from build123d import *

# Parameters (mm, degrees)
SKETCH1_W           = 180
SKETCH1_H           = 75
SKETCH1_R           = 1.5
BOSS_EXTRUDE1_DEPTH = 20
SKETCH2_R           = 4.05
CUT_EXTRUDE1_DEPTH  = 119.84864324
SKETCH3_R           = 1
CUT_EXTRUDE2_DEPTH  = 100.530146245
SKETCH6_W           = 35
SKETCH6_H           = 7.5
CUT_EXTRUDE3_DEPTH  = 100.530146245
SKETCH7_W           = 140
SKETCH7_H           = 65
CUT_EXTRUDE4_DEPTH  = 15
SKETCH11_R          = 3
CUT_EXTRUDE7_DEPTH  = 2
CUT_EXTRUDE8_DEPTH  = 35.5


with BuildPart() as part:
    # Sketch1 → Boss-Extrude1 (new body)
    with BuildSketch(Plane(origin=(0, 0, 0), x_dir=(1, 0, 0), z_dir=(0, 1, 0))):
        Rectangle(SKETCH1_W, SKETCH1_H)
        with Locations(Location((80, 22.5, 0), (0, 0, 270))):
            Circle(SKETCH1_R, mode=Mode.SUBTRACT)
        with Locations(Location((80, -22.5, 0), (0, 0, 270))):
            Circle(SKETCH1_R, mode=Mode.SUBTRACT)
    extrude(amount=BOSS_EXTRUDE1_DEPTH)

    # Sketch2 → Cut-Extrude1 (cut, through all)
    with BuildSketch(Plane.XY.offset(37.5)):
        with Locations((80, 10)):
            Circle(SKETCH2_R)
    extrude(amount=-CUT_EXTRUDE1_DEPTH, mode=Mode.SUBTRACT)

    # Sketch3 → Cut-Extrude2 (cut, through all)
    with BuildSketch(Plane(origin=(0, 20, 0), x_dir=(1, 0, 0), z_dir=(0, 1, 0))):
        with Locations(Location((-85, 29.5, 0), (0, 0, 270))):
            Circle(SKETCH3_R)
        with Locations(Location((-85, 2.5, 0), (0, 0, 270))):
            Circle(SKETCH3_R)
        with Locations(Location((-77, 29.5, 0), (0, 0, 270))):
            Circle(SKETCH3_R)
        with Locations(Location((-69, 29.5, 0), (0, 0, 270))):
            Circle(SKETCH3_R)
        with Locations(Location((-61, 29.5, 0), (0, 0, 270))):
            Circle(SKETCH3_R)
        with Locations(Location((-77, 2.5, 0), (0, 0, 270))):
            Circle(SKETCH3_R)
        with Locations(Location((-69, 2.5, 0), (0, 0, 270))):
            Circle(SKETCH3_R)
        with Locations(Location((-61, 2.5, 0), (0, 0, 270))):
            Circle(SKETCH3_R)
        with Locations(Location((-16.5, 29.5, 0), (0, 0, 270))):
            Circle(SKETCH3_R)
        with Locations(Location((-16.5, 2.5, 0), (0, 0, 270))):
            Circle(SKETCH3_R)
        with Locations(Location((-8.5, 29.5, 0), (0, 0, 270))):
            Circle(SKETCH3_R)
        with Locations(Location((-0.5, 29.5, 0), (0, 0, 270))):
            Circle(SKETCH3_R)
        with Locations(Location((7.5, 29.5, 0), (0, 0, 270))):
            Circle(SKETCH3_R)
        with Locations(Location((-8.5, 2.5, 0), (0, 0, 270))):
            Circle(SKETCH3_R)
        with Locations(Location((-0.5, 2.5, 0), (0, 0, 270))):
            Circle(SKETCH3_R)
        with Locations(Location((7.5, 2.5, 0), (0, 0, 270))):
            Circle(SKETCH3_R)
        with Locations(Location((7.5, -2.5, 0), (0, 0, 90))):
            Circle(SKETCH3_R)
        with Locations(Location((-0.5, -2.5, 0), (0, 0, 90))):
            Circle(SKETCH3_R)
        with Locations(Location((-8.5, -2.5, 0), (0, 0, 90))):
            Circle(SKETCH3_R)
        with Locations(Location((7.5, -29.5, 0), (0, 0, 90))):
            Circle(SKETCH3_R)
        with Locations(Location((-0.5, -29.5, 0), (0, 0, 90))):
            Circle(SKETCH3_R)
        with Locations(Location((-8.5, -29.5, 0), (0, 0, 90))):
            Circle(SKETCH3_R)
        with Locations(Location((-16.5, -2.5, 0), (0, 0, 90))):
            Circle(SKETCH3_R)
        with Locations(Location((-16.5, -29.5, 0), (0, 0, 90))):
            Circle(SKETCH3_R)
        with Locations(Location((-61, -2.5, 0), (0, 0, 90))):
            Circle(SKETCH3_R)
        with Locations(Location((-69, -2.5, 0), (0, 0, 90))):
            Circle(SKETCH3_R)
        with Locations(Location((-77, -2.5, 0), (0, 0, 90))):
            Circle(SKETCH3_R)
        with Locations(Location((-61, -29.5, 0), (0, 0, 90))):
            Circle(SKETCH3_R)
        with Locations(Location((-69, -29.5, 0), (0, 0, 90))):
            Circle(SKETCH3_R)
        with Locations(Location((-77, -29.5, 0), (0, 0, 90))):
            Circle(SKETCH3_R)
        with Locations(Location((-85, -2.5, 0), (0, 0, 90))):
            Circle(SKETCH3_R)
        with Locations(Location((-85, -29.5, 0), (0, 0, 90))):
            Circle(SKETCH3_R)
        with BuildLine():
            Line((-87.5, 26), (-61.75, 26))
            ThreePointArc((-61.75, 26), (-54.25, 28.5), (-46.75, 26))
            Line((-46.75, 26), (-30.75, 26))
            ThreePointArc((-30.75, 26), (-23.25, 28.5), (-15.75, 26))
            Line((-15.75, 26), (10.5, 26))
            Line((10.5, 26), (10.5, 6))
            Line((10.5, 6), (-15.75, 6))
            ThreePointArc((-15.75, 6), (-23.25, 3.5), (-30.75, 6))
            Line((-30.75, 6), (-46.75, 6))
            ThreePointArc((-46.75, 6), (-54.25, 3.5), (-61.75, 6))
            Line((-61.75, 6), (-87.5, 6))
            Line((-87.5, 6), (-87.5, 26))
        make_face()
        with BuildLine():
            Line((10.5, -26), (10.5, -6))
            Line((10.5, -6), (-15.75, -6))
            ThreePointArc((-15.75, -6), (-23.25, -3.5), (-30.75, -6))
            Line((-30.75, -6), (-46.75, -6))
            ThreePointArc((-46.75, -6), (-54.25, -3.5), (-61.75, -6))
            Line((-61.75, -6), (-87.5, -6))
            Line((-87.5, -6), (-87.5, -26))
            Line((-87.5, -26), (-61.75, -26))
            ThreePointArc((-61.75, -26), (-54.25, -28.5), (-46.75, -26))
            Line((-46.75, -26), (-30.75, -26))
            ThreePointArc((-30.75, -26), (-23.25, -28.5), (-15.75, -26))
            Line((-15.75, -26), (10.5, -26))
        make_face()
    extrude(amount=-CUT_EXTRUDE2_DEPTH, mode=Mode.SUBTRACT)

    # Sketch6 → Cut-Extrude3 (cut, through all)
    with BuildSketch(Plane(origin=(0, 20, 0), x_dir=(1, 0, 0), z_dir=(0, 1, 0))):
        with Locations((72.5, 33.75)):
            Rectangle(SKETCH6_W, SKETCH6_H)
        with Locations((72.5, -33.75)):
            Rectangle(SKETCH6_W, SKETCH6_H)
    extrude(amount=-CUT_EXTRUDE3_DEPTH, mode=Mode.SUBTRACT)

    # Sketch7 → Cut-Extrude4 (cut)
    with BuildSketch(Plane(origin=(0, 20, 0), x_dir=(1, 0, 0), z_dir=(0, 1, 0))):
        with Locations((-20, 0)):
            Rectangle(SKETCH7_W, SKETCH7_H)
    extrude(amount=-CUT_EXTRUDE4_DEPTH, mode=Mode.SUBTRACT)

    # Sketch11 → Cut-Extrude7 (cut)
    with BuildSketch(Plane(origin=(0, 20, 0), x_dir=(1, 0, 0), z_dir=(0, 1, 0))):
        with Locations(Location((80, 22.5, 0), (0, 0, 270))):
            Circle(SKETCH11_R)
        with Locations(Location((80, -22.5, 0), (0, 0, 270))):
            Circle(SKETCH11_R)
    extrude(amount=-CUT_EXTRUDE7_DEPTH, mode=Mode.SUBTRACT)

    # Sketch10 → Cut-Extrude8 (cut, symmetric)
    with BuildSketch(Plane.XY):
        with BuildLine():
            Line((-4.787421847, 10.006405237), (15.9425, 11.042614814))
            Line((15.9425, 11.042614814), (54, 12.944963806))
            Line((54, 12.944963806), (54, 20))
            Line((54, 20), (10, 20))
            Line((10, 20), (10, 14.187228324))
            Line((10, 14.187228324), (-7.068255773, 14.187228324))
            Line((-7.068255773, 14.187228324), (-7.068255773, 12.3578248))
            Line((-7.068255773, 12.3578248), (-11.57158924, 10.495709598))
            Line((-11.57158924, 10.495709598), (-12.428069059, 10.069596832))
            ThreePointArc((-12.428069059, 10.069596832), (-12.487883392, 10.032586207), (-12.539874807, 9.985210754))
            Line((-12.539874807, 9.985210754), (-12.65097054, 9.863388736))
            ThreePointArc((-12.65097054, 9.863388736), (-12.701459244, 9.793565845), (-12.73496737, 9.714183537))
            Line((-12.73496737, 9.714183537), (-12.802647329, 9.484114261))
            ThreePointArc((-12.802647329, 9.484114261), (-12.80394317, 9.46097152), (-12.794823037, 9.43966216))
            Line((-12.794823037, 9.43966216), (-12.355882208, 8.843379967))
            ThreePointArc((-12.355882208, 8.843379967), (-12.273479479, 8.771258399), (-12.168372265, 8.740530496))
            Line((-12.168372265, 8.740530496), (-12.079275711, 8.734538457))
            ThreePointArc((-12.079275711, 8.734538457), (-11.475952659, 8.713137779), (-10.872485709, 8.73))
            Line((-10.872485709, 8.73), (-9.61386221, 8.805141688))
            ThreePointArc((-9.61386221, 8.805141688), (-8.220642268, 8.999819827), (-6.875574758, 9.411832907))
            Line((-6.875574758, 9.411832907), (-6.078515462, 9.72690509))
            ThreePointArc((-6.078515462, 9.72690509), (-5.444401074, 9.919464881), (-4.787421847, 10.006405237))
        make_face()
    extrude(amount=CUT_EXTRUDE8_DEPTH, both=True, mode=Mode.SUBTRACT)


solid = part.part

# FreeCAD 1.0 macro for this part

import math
import FreeCAD as App
import Part
import Sketcher
from FreeCAD import Vector
Q = App.Units.Quantity

doc = App.newDocument("Part")
params = doc.addObject("Spreadsheet::Sheet", "Params")
for row, (alias, value) in enumerate([
    ("sketch1_diameter", "3 mm"),
    ("sketch1_width", "180 mm"),
    ("sketch1_height", "75 mm"),
    ("pad1_length", "20 mm"),
    ("sketch2_diameter", "8.1 mm"),
    ("sketch3_diameter", "2 mm"),
    ("sketch3_radius", "12.5 mm"),
    ("sketch3_width", "16 mm"),
    ("sketch3_height", "20 mm"),
    ("sketch3_width2", "25.75 mm"),
    ("sketch4_width", "35 mm"),
    ("sketch4_height", "7.5 mm"),
    ("sketch5_width", "140 mm"),
    ("sketch5_height", "65 mm"),
    ("pocket4_length", "15 mm"),
    ("sketch6_diameter", "6 mm"),
    ("pocket5_length", "2 mm"),
    ("sketch7_width", "44 mm"),
    ("sketch7_radius", "8.89 mm"),
    ("pocket6_length", "71 mm"),
], start=1):
    params.set(f"A{row}", alias)
    params.set(f"B{row}", "=" + value)
    params.setAlias(f"B{row}", alias)

body = doc.addObject("PartDesign::Body", "Body")

# Sketch on XZ plane
sketch1 = body.newObject("Sketcher::SketchObject", "Sketch")
sketch1.AttachmentSupport = (doc.getObject("XZ_Plane"), [""])
sketch1.MapMode = "FlatFace"
sketch1.addGeometry([
    Part.LineSegment(Vector(-90, -37.5, 0), Vector(-90, 37.5, 0)),  # 0
    Part.LineSegment(Vector(-90, 37.5, 0), Vector(90, 37.5, 0)),  # 1
    Part.LineSegment(Vector(90, 37.5, 0), Vector(90, -37.5, 0)),  # 2
    Part.LineSegment(Vector(90, -37.5, 0), Vector(-90, -37.5, 0)),  # 3
    Part.Circle(Vector(80, 22.5, 0), Vector(0, 0, 1), 1.5),  # 4
    Part.Circle(Vector(80, -22.5, 0), Vector(0, 0, 1), 1.5),  # 5
], False)
sketch1.addConstraint([
    Sketcher.Constraint("Coincident", 0, 2, 1, 1),
    Sketcher.Constraint("Coincident", 1, 2, 2, 1),
    Sketcher.Constraint("Coincident", 2, 2, 3, 1),
    Sketcher.Constraint("Coincident", 3, 2, 0, 1),
    Sketcher.Constraint("Vertical", 0),
    Sketcher.Constraint("Horizontal", 1),
    Sketcher.Constraint("Vertical", 2),
    Sketcher.Constraint("Horizontal", 3),
    Sketcher.Constraint("Equal", 4, 5),
    Sketcher.Constraint("Symmetric", 0, 2, 2, 2, -1, 1),
    Sketcher.Constraint("Symmetric", 4, 3, 5, 3, -1),
    Sketcher.Constraint("Diameter", 4, Q("3 mm")),
    Sketcher.Constraint("DistanceX", 1, 1, 1, 2, Q("180 mm")),
    Sketcher.Constraint("DistanceY", 0, 1, 0, 2, Q("75 mm")),
    Sketcher.Constraint("DistanceX", -1, 1, 4, 3, Q("80 mm")),
    Sketcher.Constraint("DistanceY", 5, 3, 4, 3, Q("45 mm")),
])
sketch1.setExpression("Constraints[11]", "Params.sketch1_diameter")
sketch1.setExpression("Constraints[12]", "Params.sketch1_width")
sketch1.setExpression("Constraints[13]", "Params.sketch1_height")
pad1 = body.newObject("PartDesign::Pad", "Pad")
pad1.Profile = sketch1
pad1.setExpression("Length", "Params.pad1_length")
pad1.Reversed = True

# Sketch on XY plane
sketch2 = body.newObject("Sketcher::SketchObject", "Sketch001")
sketch2.AttachmentSupport = (doc.getObject("XY_Plane"), [""])
sketch2.MapMode = "FlatFace"
sketch2.AttachmentOffset = App.Placement(Vector(0, 0, 37.5), App.Rotation())
sketch2.addGeometry(Part.Circle(Vector(80, 10, 0), Vector(0, 0, 1), 4), False)
sketch2.addConstraint([
    Sketcher.Constraint("Diameter", 0, Q("8.1 mm")),
    Sketcher.Constraint("DistanceX", -1, 1, 0, 3, Q("80 mm")),
    Sketcher.Constraint("DistanceY", -1, 1, 0, 3, Q("10 mm")),
])
sketch2.setExpression("Constraints[0]", "Params.sketch2_diameter")
pocket1 = body.newObject("PartDesign::Pocket", "Pocket")
pocket1.Profile = sketch2
pocket1.Type = "ThroughAll"

# Sketch on XZ plane
sketch3 = body.newObject("Sketcher::SketchObject", "Sketch002")
sketch3.AttachmentSupport = (doc.getObject("XZ_Plane"), [""])
sketch3.MapMode = "FlatFace"
sketch3.AttachmentOffset = App.Placement(Vector(0, 0, -20), App.Rotation())
sketch3.addGeometry([
    Part.Circle(Vector(-85, -29.5, 0), Vector(0, 0, 1), 1),  # 0
    Part.Circle(Vector(-85, -2.5, 0), Vector(0, 0, 1), 1),  # 1
    Part.Circle(Vector(-77, -29.5, 0), Vector(0, 0, 1), 1),  # 2
    Part.Circle(Vector(-69, -29.5, 0), Vector(0, 0, 1), 1),  # 3
    Part.Circle(Vector(-61, -29.5, 0), Vector(0, 0, 1), 1),  # 4
    Part.Circle(Vector(-77, -2.5, 0), Vector(0, 0, 1), 1),  # 5
    Part.Circle(Vector(-69, -2.5, 0), Vector(0, 0, 1), 1),  # 6
    Part.Circle(Vector(-61, -2.5, 0), Vector(0, 0, 1), 1),  # 7
    Part.Circle(Vector(-16.5, -29.5, 0), Vector(0, 0, 1), 1),  # 8
    Part.Circle(Vector(-16.5, -2.5, 0), Vector(0, 0, 1), 1),  # 9
    Part.Circle(Vector(-8.5, -29.5, 0), Vector(0, 0, 1), 1),  # 10
    Part.Circle(Vector(-0.5, -29.5, 0), Vector(0, 0, 1), 1),  # 11
    Part.Circle(Vector(7.5, -29.5, 0), Vector(0, 0, 1), 1),  # 12
    Part.Circle(Vector(-8.5, -2.5, 0), Vector(0, 0, 1), 1),  # 13
    Part.Circle(Vector(-0.5, -2.5, 0), Vector(0, 0, 1), 1),  # 14
    Part.Circle(Vector(7.5, -2.5, 0), Vector(0, 0, 1), 1),  # 15
    Part.Circle(Vector(7.5, 2.5, 0), Vector(0, 0, 1), 1),  # 16
    Part.Circle(Vector(-0.5, 2.5, 0), Vector(0, 0, 1), 1),  # 17
    Part.Circle(Vector(-8.5, 2.5, 0), Vector(0, 0, 1), 1),  # 18
    Part.Circle(Vector(7.5, 29.5, 0), Vector(0, 0, 1), 1),  # 19
    Part.Circle(Vector(-0.5, 29.5, 0), Vector(0, 0, 1), 1),  # 20
    Part.Circle(Vector(-8.5, 29.5, 0), Vector(0, 0, 1), 1),  # 21
    Part.Circle(Vector(-16.5, 2.5, 0), Vector(0, 0, 1), 1),  # 22
    Part.Circle(Vector(-16.5, 29.5, 0), Vector(0, 0, 1), 1),  # 23
    Part.Circle(Vector(-61, 2.5, 0), Vector(0, 0, 1), 1),  # 24
    Part.Circle(Vector(-69, 2.5, 0), Vector(0, 0, 1), 1),  # 25
    Part.Circle(Vector(-77, 2.5, 0), Vector(0, 0, 1), 1),  # 26
    Part.Circle(Vector(-61, 29.5, 0), Vector(0, 0, 1), 1),  # 27
    Part.Circle(Vector(-69, 29.5, 0), Vector(0, 0, 1), 1),  # 28
    Part.Circle(Vector(-77, 29.5, 0), Vector(0, 0, 1), 1),  # 29
    Part.Circle(Vector(-85, 2.5, 0), Vector(0, 0, 1), 1),  # 30
    Part.Circle(Vector(-85, 29.5, 0), Vector(0, 0, 1), 1),  # 31
    Part.LineSegment(Vector(-61.8, -26, 0), Vector(-87.5, -26, 0)),  # 32
    Part.LineSegment(Vector(-87.5, -26, 0), Vector(-87.5, -6, 0)),  # 33
    Part.LineSegment(Vector(-87.5, -6, 0), Vector(-61.8, -6, 0)),  # 34
    Part.ArcOfCircle(Part.Circle(Vector(-54.2, -16, 0), Vector(0, 0, 1), 12.5), math.radians(53), math.radians(127)),  # 35
    Part.LineSegment(Vector(-46.8, -6, 0), Vector(-30.8, -6, 0)),  # 36
    Part.ArcOfCircle(Part.Circle(Vector(-23.2, -16, 0), Vector(0, 0, 1), 12.5), math.radians(53), math.radians(127)),  # 37
    Part.LineSegment(Vector(-15.8, -6, 0), Vector(10.5, -6, 0)),  # 38
    Part.LineSegment(Vector(10.5, -6, 0), Vector(10.5, -26, 0)),  # 39
    Part.LineSegment(Vector(10.5, -26, 0), Vector(-15.8, -26, 0)),  # 40
    Part.ArcOfCircle(Part.Circle(Vector(-23.2, -16, 0), Vector(0, 0, 1), 12.5), math.radians(-127), math.radians(-53)),  # 41
    Part.LineSegment(Vector(-30.8, -26, 0), Vector(-46.8, -26, 0)),  # 42
    Part.ArcOfCircle(Part.Circle(Vector(-54.2, -16, 0), Vector(0, 0, 1), 12.5), math.radians(-127), math.radians(-53)),  # 43
    Part.LineSegment(Vector(10.5, 26, 0), Vector(10.5, 6, 0)),  # 44
    Part.LineSegment(Vector(10.5, 6, 0), Vector(-15.8, 6, 0)),  # 45
    Part.ArcOfCircle(Part.Circle(Vector(-23.2, 16, 0), Vector(0, 0, 1), 12.5), math.radians(-127), math.radians(-53)),  # 46
    Part.LineSegment(Vector(-30.8, 6, 0), Vector(-46.8, 6, 0)),  # 47
    Part.ArcOfCircle(Part.Circle(Vector(-54.2, 16, 0), Vector(0, 0, 1), 12.5), math.radians(-127), math.radians(-53)),  # 48
    Part.LineSegment(Vector(-61.8, 6, 0), Vector(-87.5, 6, 0)),  # 49
    Part.LineSegment(Vector(-87.5, 6, 0), Vector(-87.5, 26, 0)),  # 50
    Part.LineSegment(Vector(-87.5, 26, 0), Vector(-61.8, 26, 0)),  # 51
    Part.ArcOfCircle(Part.Circle(Vector(-54.2, 16, 0), Vector(0, 0, 1), 12.5), math.radians(53), math.radians(127)),  # 52
    Part.LineSegment(Vector(-46.8, 26, 0), Vector(-30.8, 26, 0)),  # 53
    Part.ArcOfCircle(Part.Circle(Vector(-23.2, 16, 0), Vector(0, 0, 1), 12.5), math.radians(53), math.radians(127)),  # 54
    Part.LineSegment(Vector(-15.8, 26, 0), Vector(10.5, 26, 0)),  # 55
], False)
sketch3.addConstraint([
    Sketcher.Constraint("Coincident", 32, 2, 33, 1),
    Sketcher.Constraint("Coincident", 33, 2, 34, 1),
    Sketcher.Constraint("Coincident", 34, 2, 35, 2),
    Sketcher.Constraint("Coincident", 35, 1, 36, 1),
    Sketcher.Constraint("Coincident", 36, 2, 37, 2),
    Sketcher.Constraint("Coincident", 37, 1, 38, 1),
    Sketcher.Constraint("Coincident", 38, 2, 39, 1),
    Sketcher.Constraint("Coincident", 39, 2, 40, 1),
    Sketcher.Constraint("Coincident", 40, 2, 41, 2),
    Sketcher.Constraint("Coincident", 41, 1, 42, 1),
    Sketcher.Constraint("Coincident", 42, 2, 43, 2),
    Sketcher.Constraint("Coincident", 43, 1, 32, 1),
    Sketcher.Constraint("Coincident", 44, 2, 45, 1),
    Sketcher.Constraint("Coincident", 45, 2, 46, 2),
    Sketcher.Constraint("Coincident", 46, 1, 47, 1),
    Sketcher.Constraint("Coincident", 47, 2, 48, 2),
    Sketcher.Constraint("Coincident", 48, 1, 49, 1),
    Sketcher.Constraint("Coincident", 49, 2, 50, 1),
    Sketcher.Constraint("Coincident", 50, 2, 51, 1),
    Sketcher.Constraint("Coincident", 51, 2, 52, 2),
    Sketcher.Constraint("Coincident", 52, 1, 53, 1),
    Sketcher.Constraint("Coincident", 53, 2, 54, 2),
    Sketcher.Constraint("Coincident", 54, 1, 55, 1),
    Sketcher.Constraint("Coincident", 55, 2, 44, 1),
    Sketcher.Constraint("Horizontal", 32),
    Sketcher.Constraint("Vertical", 33),
    Sketcher.Constraint("Horizontal", 34),
    Sketcher.Constraint("Horizontal", 36),
    Sketcher.Constraint("Horizontal", 38),
    Sketcher.Constraint("Vertical", 39),
    Sketcher.Constraint("Horizontal", 40),
    Sketcher.Constraint("Horizontal", 42),
    Sketcher.Constraint("Vertical", 44),
    Sketcher.Constraint("Horizontal", 45),
    Sketcher.Constraint("Horizontal", 47),
    Sketcher.Constraint("Horizontal", 49),
    Sketcher.Constraint("Vertical", 50),
    Sketcher.Constraint("Horizontal", 51),
    Sketcher.Constraint("Horizontal", 53),
    Sketcher.Constraint("Horizontal", 55),
    Sketcher.Constraint("Coincident", 41, 3, 37, 3),
    Sketcher.Constraint("Coincident", 43, 3, 35, 3),
    Sketcher.Constraint("Coincident", 52, 3, 48, 3),
    Sketcher.Constraint("Coincident", 54, 3, 46, 3),
    Sketcher.Constraint("Equal", 0, 1),
    Sketcher.Constraint("Equal", 1, 2),
    Sketcher.Constraint("Equal", 2, 3),
    Sketcher.Constraint("Equal", 3, 4),
    Sketcher.Constraint("Equal", 4, 5),
    Sketcher.Constraint("Equal", 5, 6),
    Sketcher.Constraint("Equal", 6, 7),
    Sketcher.Constraint("Equal", 7, 8),
    Sketcher.Constraint("Equal", 8, 9),
    Sketcher.Constraint("Equal", 9, 10),
    Sketcher.Constraint("Equal", 10, 11),
    Sketcher.Constraint("Equal", 11, 12),
    Sketcher.Constraint("Equal", 12, 13),
    Sketcher.Constraint("Equal", 13, 14),
    Sketcher.Constraint("Equal", 14, 15),
    Sketcher.Constraint("Equal", 15, 16),
    Sketcher.Constraint("Equal", 16, 17),
    Sketcher.Constraint("Equal", 17, 18),
    Sketcher.Constraint("Equal", 18, 19),
    Sketcher.Constraint("Equal", 19, 20),
    Sketcher.Constraint("Equal", 20, 21),
    Sketcher.Constraint("Equal", 21, 22),
    Sketcher.Constraint("Equal", 22, 23),
    Sketcher.Constraint("Equal", 23, 24),
    Sketcher.Constraint("Equal", 24, 25),
    Sketcher.Constraint("Equal", 25, 26),
    Sketcher.Constraint("Equal", 26, 27),
    Sketcher.Constraint("Equal", 27, 28),
    Sketcher.Constraint("Equal", 28, 29),
    Sketcher.Constraint("Equal", 29, 30),
    Sketcher.Constraint("Equal", 30, 31),
    Sketcher.Constraint("Equal", 35, 37),
    Sketcher.Constraint("Equal", 37, 41),
    Sketcher.Constraint("Equal", 41, 43),
    Sketcher.Constraint("Equal", 43, 46),
    Sketcher.Constraint("Equal", 46, 48),
    Sketcher.Constraint("Equal", 48, 52),
    Sketcher.Constraint("Equal", 52, 54),
    Sketcher.Constraint("Symmetric", 15, 3, 16, 3, -1),
    Sketcher.Constraint("Symmetric", 14, 3, 17, 3, -1),
    Sketcher.Constraint("Symmetric", 13, 3, 18, 3, -1),
    Sketcher.Constraint("Symmetric", 12, 3, 19, 3, -1),
    Sketcher.Constraint("Symmetric", 11, 3, 20, 3, -1),
    Sketcher.Constraint("Symmetric", 10, 3, 21, 3, -1),
    Sketcher.Constraint("Symmetric", 9, 3, 22, 3, -1),
    Sketcher.Constraint("Symmetric", 8, 3, 23, 3, -1),
    Sketcher.Constraint("Symmetric", 7, 3, 24, 3, -1),
    Sketcher.Constraint("Symmetric", 6, 3, 25, 3, -1),
    Sketcher.Constraint("Symmetric", 5, 3, 26, 3, -1),
    Sketcher.Constraint("Symmetric", 4, 3, 27, 3, -1),
    Sketcher.Constraint("Symmetric", 3, 3, 28, 3, -1),
    Sketcher.Constraint("Symmetric", 2, 3, 29, 3, -1),
    Sketcher.Constraint("Symmetric", 1, 3, 30, 3, -1),
    Sketcher.Constraint("Symmetric", 0, 3, 31, 3, -1),
    Sketcher.Constraint("Symmetric", 37, 3, 46, 3, -1),
    Sketcher.Constraint("Symmetric", 35, 3, 48, 3, -1),
    Sketcher.Constraint("Symmetric", 38, 2, 44, 2, -1),
    Sketcher.Constraint("Symmetric", 33, 2, 49, 2, -1),
    Sketcher.Constraint("Horizontal", 0, 3, 2, 3),
    Sketcher.Constraint("Horizontal", 2, 3, 3, 3),
    Sketcher.Constraint("Horizontal", 3, 3, 4, 3),
    Sketcher.Constraint("Horizontal", 1, 3, 5, 3),
    Sketcher.Constraint("Horizontal", 5, 3, 6, 3),
    Sketcher.Constraint("Horizontal", 6, 3, 7, 3),
    Sketcher.Constraint("Horizontal", 4, 3, 8, 3),
    Sketcher.Constraint("Horizontal", 7, 3, 9, 3),
    Sketcher.Constraint("Horizontal", 8, 3, 10, 3),
    Sketcher.Constraint("Horizontal", 10, 3, 11, 3),
    Sketcher.Constraint("Horizontal", 11, 3, 12, 3),
    Sketcher.Constraint("Horizontal", 9, 3, 13, 3),
    Sketcher.Constraint("Horizontal", 13, 3, 14, 3),
    Sketcher.Constraint("Horizontal", 14, 3, 15, 3),
    Sketcher.Constraint("Horizontal", 35, 3, 37, 3),
    Sketcher.Constraint("Horizontal", 34, 2, 35, 1),
    Sketcher.Constraint("Horizontal", 36, 2, 37, 1),
    Sketcher.Constraint("Horizontal", 32, 2, 39, 2),
    Sketcher.Constraint("Horizontal", 40, 2, 41, 1),
    Sketcher.Constraint("Horizontal", 45, 2, 46, 1),
    Sketcher.Constraint("Horizontal", 51, 2, 52, 1),
    Sketcher.Constraint("Horizontal", 53, 2, 54, 1),
    Sketcher.Constraint("Vertical", 0, 3, 1, 3),
    Sketcher.Constraint("Vertical", 2, 3, 5, 3),
    Sketcher.Constraint("Vertical", 3, 3, 6, 3),
    Sketcher.Constraint("Vertical", 4, 3, 7, 3),
    Sketcher.Constraint("Vertical", 8, 3, 9, 3),
    Sketcher.Constraint("Vertical", 10, 3, 13, 3),
    Sketcher.Constraint("Vertical", 11, 3, 14, 3),
    Sketcher.Constraint("Vertical", 12, 3, 15, 3),
    Sketcher.Constraint("Vertical", 37, 1, 40, 2),
    Sketcher.Constraint("Vertical", 48, 1, 51, 2),
    Sketcher.Constraint("Diameter", 0, Q("2 mm")),
    Sketcher.Constraint("Radius", 35, Q("12.5 mm")),
    Sketcher.Constraint("DistanceX", 36, 1, 36, 2, Q("16 mm")),
    Sketcher.Constraint("DistanceY", 33, 1, 33, 2, Q("20 mm")),
    Sketcher.Constraint("DistanceX", 0, 3, -1, 1, Q("85 mm")),
    Sketcher.Constraint("DistanceX", 2, 3, -1, 1, Q("77 mm")),
    Sketcher.Constraint("DistanceX", 3, 3, -1, 1, Q("69 mm")),
    Sketcher.Constraint("DistanceX", 4, 3, -1, 1, Q("61 mm")),
    Sketcher.Constraint("DistanceY", 35, 3, -1, 1, Q("16 mm")),
    Sketcher.Constraint("DistanceX", 32, 2, 32, 1, Q("25.75 mm")),
    Sketcher.Constraint("DistanceX", 38, 1, 38, 2, Q("26.25 mm")),
    Sketcher.Constraint("DistanceY", 0, 3, -1, 1, Q("29.5 mm")),
    Sketcher.Constraint("DistanceY", 1, 3, -1, 1, Q("2.5 mm")),
    Sketcher.Constraint("DistanceX", 8, 3, -1, 1, Q("16.5 mm")),
    Sketcher.Constraint("DistanceX", 10, 3, -1, 1, Q("8.5 mm")),
    Sketcher.Constraint("DistanceX", 11, 3, -1, 1, Q("0.5 mm")),
    Sketcher.Constraint("DistanceX", -1, 1, 12, 3, Q("7.5 mm")),
    Sketcher.Constraint("DistanceX", 32, 2, -1, 1, Q("87.5 mm")),
])
sketch3.setExpression("Constraints[134]", "Params.sketch3_diameter")
sketch3.setExpression("Constraints[135]", "Params.sketch3_radius")
sketch3.setExpression("Constraints[136]", "Params.sketch3_width")
sketch3.setExpression("Constraints[137]", "Params.sketch3_height")
sketch3.setExpression("Constraints[143]", "Params.sketch3_width2")
pocket2 = body.newObject("PartDesign::Pocket", "Pocket001")
pocket2.Profile = sketch3
pocket2.Type = "ThroughAll"
pocket2.Reversed = True

# Sketch on XZ plane
sketch4 = body.newObject("Sketcher::SketchObject", "Sketch003")
sketch4.AttachmentSupport = (doc.getObject("XZ_Plane"), [""])
sketch4.MapMode = "FlatFace"
sketch4.AttachmentOffset = App.Placement(Vector(0, 0, -20), App.Rotation())
sketch4.addGeometry([
    Part.LineSegment(Vector(55, -38, 0), Vector(55, -30, 0)),  # 0
    Part.LineSegment(Vector(55, -30, 0), Vector(90, -30, 0)),  # 1
    Part.LineSegment(Vector(90, -30, 0), Vector(90, -38, 0)),  # 2
    Part.LineSegment(Vector(90, -38, 0), Vector(55, -38, 0)),  # 3
    Part.LineSegment(Vector(55, 30, 0), Vector(55, 38, 0)),  # 4
    Part.LineSegment(Vector(55, 38, 0), Vector(90, 38, 0)),  # 5
    Part.LineSegment(Vector(90, 38, 0), Vector(90, 30, 0)),  # 6
    Part.LineSegment(Vector(90, 30, 0), Vector(55, 30, 0)),  # 7
], False)
sketch4.addConstraint([
    Sketcher.Constraint("Coincident", 0, 2, 1, 1),
    Sketcher.Constraint("Coincident", 1, 2, 2, 1),
    Sketcher.Constraint("Coincident", 2, 2, 3, 1),
    Sketcher.Constraint("Coincident", 3, 2, 0, 1),
    Sketcher.Constraint("Coincident", 4, 2, 5, 1),
    Sketcher.Constraint("Coincident", 5, 2, 6, 1),
    Sketcher.Constraint("Coincident", 6, 2, 7, 1),
    Sketcher.Constraint("Coincident", 7, 2, 4, 1),
    Sketcher.Constraint("Vertical", 0),
    Sketcher.Constraint("Horizontal", 1),
    Sketcher.Constraint("Vertical", 2),
    Sketcher.Constraint("Horizontal", 3),
    Sketcher.Constraint("Vertical", 4),
    Sketcher.Constraint("Horizontal", 5),
    Sketcher.Constraint("Vertical", 6),
    Sketcher.Constraint("Horizontal", 7),
    Sketcher.Constraint("Symmetric", 3, 2, 4, 2, -1),
    Sketcher.Constraint("Symmetric", 1, 2, 6, 2, -1),
    Sketcher.Constraint("DistanceX", 1, 1, 1, 2, Q("35 mm")),
    Sketcher.Constraint("DistanceY", 0, 1, 0, 2, Q("7.5 mm")),
    Sketcher.Constraint("DistanceX", -1, 1, 0, 2, Q("55 mm")),
    Sketcher.Constraint("DistanceY", 0, 2, -1, 1, Q("30 mm")),
])
sketch4.setExpression("Constraints[18]", "Params.sketch4_width")
sketch4.setExpression("Constraints[19]", "Params.sketch4_height")
pocket3 = body.newObject("PartDesign::Pocket", "Pocket002")
pocket3.Profile = sketch4
pocket3.Type = "ThroughAll"
pocket3.Reversed = True

# Sketch on XZ plane
sketch5 = body.newObject("Sketcher::SketchObject", "Sketch004")
sketch5.AttachmentSupport = (doc.getObject("XZ_Plane"), [""])
sketch5.MapMode = "FlatFace"
sketch5.AttachmentOffset = App.Placement(Vector(0, 0, -20), App.Rotation())
sketch5.addGeometry([
    Part.LineSegment(Vector(-90, -32, 0), Vector(-90, 32, 0)),
    Part.LineSegment(Vector(-90, 32, 0), Vector(50, 32, 0)),
    Part.LineSegment(Vector(50, 32, 0), Vector(50, -32, 0)),
    Part.LineSegment(Vector(50, -32, 0), Vector(-90, -32, 0)),
], False)
sketch5.addConstraint([
    Sketcher.Constraint("Coincident", 0, 2, 1, 1),
    Sketcher.Constraint("Coincident", 1, 2, 2, 1),
    Sketcher.Constraint("Coincident", 2, 2, 3, 1),
    Sketcher.Constraint("Coincident", 3, 2, 0, 1),
    Sketcher.Constraint("Vertical", 0),
    Sketcher.Constraint("Horizontal", 1),
    Sketcher.Constraint("Vertical", 2),
    Sketcher.Constraint("Horizontal", 3),
    Sketcher.Constraint("DistanceX", 1, 1, 1, 2, Q("140 mm")),
    Sketcher.Constraint("DistanceY", 0, 1, 0, 2, Q("65 mm")),
    Sketcher.Constraint("DistanceX", 0, 2, -1, 1, Q("90 mm")),
    Sketcher.Constraint("DistanceY", -1, 1, 0, 2, Q("32.5 mm")),
])
sketch5.setExpression("Constraints[8]", "Params.sketch5_width")
sketch5.setExpression("Constraints[9]", "Params.sketch5_height")
pocket4 = body.newObject("PartDesign::Pocket", "Pocket003")
pocket4.Profile = sketch5
pocket4.setExpression("Length", "Params.pocket4_length")
pocket4.Reversed = True

# Sketch on XZ plane
sketch6 = body.newObject("Sketcher::SketchObject", "Sketch005")
sketch6.AttachmentSupport = (doc.getObject("XZ_Plane"), [""])
sketch6.MapMode = "FlatFace"
sketch6.AttachmentOffset = App.Placement(Vector(0, 0, -20), App.Rotation())
sketch6.addGeometry([
    Part.Circle(Vector(80, -22.5, 0), Vector(0, 0, 1), 3),
    Part.Circle(Vector(80, 22.5, 0), Vector(0, 0, 1), 3),
], False)
sketch6.addConstraint([
    Sketcher.Constraint("Equal", 0, 1),
    Sketcher.Constraint("Symmetric", 0, 3, 1, 3, -1),
    Sketcher.Constraint("Diameter", 0, Q("6 mm")),
    Sketcher.Constraint("DistanceX", -1, 1, 0, 3, Q("80 mm")),
    Sketcher.Constraint("DistanceY", 0, 3, 1, 3, Q("45 mm")),
])
sketch6.setExpression("Constraints[2]", "Params.sketch6_diameter")
pocket5 = body.newObject("PartDesign::Pocket", "Pocket004")
pocket5.Profile = sketch6
pocket5.setExpression("Length", "Params.pocket5_length")
pocket5.Reversed = True

# Sketch on XY plane
sketch7 = body.newObject("Sketcher::SketchObject", "Sketch006")
sketch7.AttachmentSupport = (doc.getObject("XY_Plane"), [""])
sketch7.MapMode = "FlatFace"
sketch7.addGeometry([
    Part.LineSegment(Vector(-4.787422, 10.006405, 0), Vector(15.9425, 11.042615, 0)),  # 0
    Part.LineSegment(Vector(15.9425, 11.042615, 0), Vector(54, 12.944964, 0)),  # 1
    Part.LineSegment(Vector(54, 12.944964, 0), Vector(54, 20, 0)),  # 2
    Part.LineSegment(Vector(54, 20, 0), Vector(10, 20, 0)),  # 3
    Part.LineSegment(Vector(10, 20, 0), Vector(10, 14.187228, 0)),  # 4
    Part.LineSegment(Vector(10, 14.187228, 0), Vector(-7.068256, 14.187228, 0)),  # 5
    Part.LineSegment(Vector(-7.068256, 14.187228, 0), Vector(-7.068256, 12.357825, 0)),  # 6
    Part.LineSegment(Vector(-7.068256, 12.357825, 0), Vector(-11.571589, 10.49571, 0)),  # 7
    Part.LineSegment(Vector(-11.571589, 10.49571, 0), Vector(-12.428069, 10.069597, 0)),  # 8
    Part.ArcOfCircle(Part.Circle(Vector(-12.258359, 9.728482, 0), Vector(0, 0, 1), 0.381), math.radians(116.451097), math.radians(137.636713)),  # 9
    Part.LineSegment(Vector(-12.539875, 9.985211, 0), Vector(-12.650971, 9.863389, 0)),  # 10
    Part.ArcOfCircle(Part.Circle(Vector(-12.369454, 9.60666, 0), Vector(0, 0, 1), 0.381), math.radians(137.636713), math.radians(163.607588)),  # 11
    Part.LineSegment(Vector(-12.734967, 9.714184, 0), Vector(-12.802647, 9.484114, 0)),  # 12
    Part.ArcOfCircle(Part.Circle(Vector(-12.753912, 9.469778, 0), Vector(0, 0, 1), 0.0508), math.radians(163.607589), math.radians(216.357876)),  # 13
    Part.LineSegment(Vector(-12.794823, 9.439662, 0), Vector(-12.355882, 8.84338, 0)),  # 14
    Part.ArcOfCircle(Part.Circle(Vector(-12.151328, 8.993958, 0), Vector(0, 0, 1), 0.254), math.radians(-143.642124), math.radians(-93.847538)),  # 15
    Part.LineSegment(Vector(-12.168372, 8.74053, 0), Vector(-12.079276, 8.734538, 0)),  # 16
    Part.ArcOfCircle(Part.Circle(Vector(-11.440132, 18.238071, 0), Vector(0, 0, 1), 9.525), math.radians(-93.847538), math.radians(-86.583412)),  # 17
    Part.LineSegment(Vector(-10.872486, 8.73, 0), Vector(-9.613862, 8.805142, 0)),  # 18
    Part.ArcOfCircle(Part.Circle(Vector(-10.143665, 17.679341, 0), Vector(0, 0, 1), 8.89), math.radians(-86.583412), math.radians(-68.431446)),  # 19
    Part.LineSegment(Vector(-6.875575, 9.411833, 0), Vector(-6.078515, 9.726905, 0)),  # 20
    Part.ArcOfCircle(Part.Circle(Vector(-4.584531, 5.947473, 0), Vector(0, 0, 1), 4.064), math.radians(92.861615), math.radians(111.568554)),  # 21
], False)
sketch7.addConstraint([
    Sketcher.Constraint("Coincident", 0, 2, 1, 1),
    Sketcher.Constraint("Coincident", 1, 2, 2, 1),
    Sketcher.Constraint("Coincident", 2, 2, 3, 1),
    Sketcher.Constraint("Coincident", 3, 2, 4, 1),
    Sketcher.Constraint("Coincident", 4, 2, 5, 1),
    Sketcher.Constraint("Coincident", 5, 2, 6, 1),
    Sketcher.Constraint("Coincident", 6, 2, 7, 1),
    Sketcher.Constraint("Coincident", 7, 2, 8, 1),
    Sketcher.Constraint("Coincident", 8, 2, 9, 1),
    Sketcher.Constraint("Coincident", 9, 2, 10, 1),
    Sketcher.Constraint("Coincident", 10, 2, 11, 1),
    Sketcher.Constraint("Coincident", 11, 2, 12, 1),
    Sketcher.Constraint("Coincident", 12, 2, 13, 1),
    Sketcher.Constraint("Coincident", 13, 2, 14, 1),
    Sketcher.Constraint("Coincident", 14, 2, 15, 1),
    Sketcher.Constraint("Coincident", 15, 2, 16, 1),
    Sketcher.Constraint("Coincident", 16, 2, 17, 1),
    Sketcher.Constraint("Coincident", 17, 2, 18, 1),
    Sketcher.Constraint("Coincident", 18, 2, 19, 1),
    Sketcher.Constraint("Coincident", 19, 2, 20, 1),
    Sketcher.Constraint("Coincident", 20, 2, 21, 2),
    Sketcher.Constraint("Coincident", 21, 1, 0, 1),
    Sketcher.Constraint("Vertical", 2),
    Sketcher.Constraint("Horizontal", 3),
    Sketcher.Constraint("Vertical", 4),
    Sketcher.Constraint("Horizontal", 5),
    Sketcher.Constraint("Vertical", 6),
    Sketcher.Constraint("DistanceX", 3, 2, 3, 1, Q("44 mm")),
    Sketcher.Constraint("Radius", 19, Q("8.89 mm")),
    Sketcher.Constraint("DistanceX", -1, 1, 1, 2, Q("54 mm")),
    Sketcher.Constraint("DistanceY", -1, 1, 2, 2, Q("20 mm")),
    Sketcher.Constraint("Radius", 9, Q("0.381 mm")),
    Sketcher.Constraint("Radius", 11, Q("0.381 mm")),
    Sketcher.Constraint("Radius", 15, Q("0.254 mm")),
    Sketcher.Constraint("Radius", 17, Q("9.525 mm")),
    Sketcher.Constraint("Radius", 21, Q("4.064 mm")),
    Sketcher.Constraint("Radius", 13, Q("0.0508 mm")),
    Sketcher.Constraint("DistanceY", -1, 1, 17, 2, Q("8.73 mm")),
    Sketcher.Constraint("DistanceY", 4, 2, 4, 1, Q("5.812772 mm")),
    Sketcher.Constraint("DistanceX", -1, 1, 0, 2, Q("15.9425 mm")),
    Sketcher.Constraint("DistanceY", 15, 3, 11, 3, Q("0.612702 mm")),
    Sketcher.Constraint("DistanceX", 11, 3, 5, 2, Q("5.301199 mm")),
    Sketcher.Constraint("DistanceX", 10, 2, 8, 2, Q("0.222901 mm")),
    Sketcher.Constraint("DistanceX", 11, 2, 8, 2, Q("0.306898 mm")),
    Sketcher.Constraint("DistanceY", 20, 2, 21, 1, Q("0.2795 mm")),
    Sketcher.Constraint("Distance", 7, Q("4.873139 mm")),
    Sketcher.Constraint("Distance", 14, Q("0.74042 mm")),
    Sketcher.Constraint("DistanceX", 5, 2, 5, 1, Q("17.068256 mm")),
    Sketcher.Constraint("DistanceY", 2, 1, 2, 2, Q("7.055036 mm")),
    Sketcher.Constraint("DistanceY", 6, 2, 6, 1, Q("1.829404 mm")),
    Sketcher.Constraint("DistanceX", 9, 3, -1, 1, Q("12.258359 mm")),
    Sketcher.Constraint("DistanceY", -1, 1, 9, 3, Q("9.728482 mm")),
    Sketcher.Constraint("DistanceY", -1, 1, 11, 3, Q("9.60666 mm")),
    Sketcher.Constraint("DistanceX", 15, 3, -1, 1, Q("12.151328 mm")),
    Sketcher.Constraint("DistanceX", 17, 3, -1, 1, Q("11.440132 mm")),
    Sketcher.Constraint("DistanceY", -1, 1, 17, 3, Q("18.238071 mm")),
    Sketcher.Constraint("DistanceY", -1, 1, 19, 3, Q("17.679341 mm")),
    Sketcher.Constraint("DistanceX", 21, 3, -1, 1, Q("4.584531 mm")),
    Sketcher.Constraint("DistanceX", 7, 2, -1, 1, Q("11.571589 mm")),
    Sketcher.Constraint("DistanceX", 8, 2, -1, 1, Q("12.428069 mm")),
    Sketcher.Constraint("DistanceY", -1, 1, 9, 2, Q("9.985211 mm")),
    Sketcher.Constraint("DistanceY", -1, 1, 14, 2, Q("8.84338 mm")),
    Sketcher.Constraint("DistanceY", -1, 1, 15, 2, Q("8.74053 mm")),
    Sketcher.Constraint("DistanceY", -1, 1, 16, 2, Q("8.734538 mm")),
    Sketcher.Constraint("DistanceY", -1, 1, 18, 2, Q("8.805142 mm")),
    Sketcher.Constraint("DistanceX", 21, 1, -1, 1, Q("4.787422 mm")),
    Sketcher.Constraint("DistanceY", 15, 3, 13, 3, Q("0.47582 mm")),
    Sketcher.Constraint("DistanceX", 13, 3, 17, 3, Q("1.313781 mm")),
    Sketcher.Constraint("DistanceX", 11, 3, 19, 3, Q("2.225789 mm")),
    Sketcher.Constraint("DistanceY", 21, 3, 9, 3, Q("3.781009 mm")),
    Sketcher.Constraint("DistanceY", 21, 3, 0, 2, Q("5.095142 mm")),
    Sketcher.Constraint("DistanceX", 12, 2, 11, 2, Q("0.06768 mm")),
    Sketcher.Constraint("DistanceY", 18, 2, 19, 2, Q("0.606691 mm")),
])
sketch7.setExpression("Constraints[27]", "Params.sketch7_width")
sketch7.setExpression("Constraints[28]", "Params.sketch7_radius")
pocket6 = body.newObject("PartDesign::Pocket", "Pocket005")
pocket6.Profile = sketch7
pocket6.setExpression("Length", "Params.pocket6_length")
pocket6.Midplane = True

doc.recompute()
